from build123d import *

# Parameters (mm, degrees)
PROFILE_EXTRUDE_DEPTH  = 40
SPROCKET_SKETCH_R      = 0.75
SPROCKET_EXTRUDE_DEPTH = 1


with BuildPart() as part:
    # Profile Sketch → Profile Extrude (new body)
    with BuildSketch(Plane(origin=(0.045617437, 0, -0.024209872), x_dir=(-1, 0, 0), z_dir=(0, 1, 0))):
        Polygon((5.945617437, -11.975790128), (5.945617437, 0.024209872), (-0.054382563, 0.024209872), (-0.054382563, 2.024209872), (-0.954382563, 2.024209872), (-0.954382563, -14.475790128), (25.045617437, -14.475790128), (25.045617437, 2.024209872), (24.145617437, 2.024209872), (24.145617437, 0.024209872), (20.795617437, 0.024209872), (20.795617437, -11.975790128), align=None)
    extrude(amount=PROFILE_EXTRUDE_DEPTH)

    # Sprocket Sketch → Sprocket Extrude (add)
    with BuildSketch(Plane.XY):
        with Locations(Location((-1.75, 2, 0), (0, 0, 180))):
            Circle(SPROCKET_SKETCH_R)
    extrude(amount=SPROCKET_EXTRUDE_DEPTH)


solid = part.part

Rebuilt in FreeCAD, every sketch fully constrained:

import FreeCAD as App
import Part
import Sketcher

V = App.Vector
Q = App.Units.Quantity

doc = App.newDocument("Part")
body = doc.addObject("PartDesign::Body", "Body")

sketch1 = doc.addObject("Sketcher::SketchObject", "Sketch")
body.addObject(sketch1)
sketch1.AttachmentSupport = (doc.XZ_Plane, [""])
sketch1.MapMode = "FlatFace"
sketch1.addGeometry([
    Part.LineSegment(V(-5.9, -12, 0), V(-5.9, 0, 0)),
    Part.LineSegment(V(-5.9, 0, 0), V(0.1, 0, 0)),
    Part.LineSegment(V(0.1, 0, 0), V(0.1, 2, 0)),
    Part.LineSegment(V(0.1, 2, 0), V(1, 2, 0)),
    Part.LineSegment(V(1, 2, 0), V(1, -14.5, 0)),
    Part.LineSegment(V(1, -14.5, 0), V(-25, -14.5, 0)),
    Part.LineSegment(V(-25, -14.5, 0), V(-25, 2, 0)),
    Part.LineSegment(V(-25, 2, 0), V(-24.1, 2, 0)),
    Part.LineSegment(V(-24.1, 2, 0), V(-24.1, 0, 0)),
    Part.LineSegment(V(-24.1, 0, 0), V(-20.75, 0, 0)),
    Part.LineSegment(V(-20.75, 0, 0), V(-20.75, -12, 0)),
    Part.LineSegment(V(-20.75, -12, 0), V(-5.9, -12, 0)),
], False)
sketch1.addConstraint([
    Sketcher.Constraint("Coincident", 0, 2, 1, 1),
    Sketcher.Constraint("Coincident", 1, 2, 2, 1),
    Sketcher.Constraint("Coincident", 2, 2, 3, 1),
    Sketcher.Constraint("Coincident", 3, 2, 4, 1),
    Sketcher.Constraint("Coincident", 4, 2, 5, 1),
    Sketcher.Constraint("Coincident", 5, 2, 6, 1),
    Sketcher.Constraint("Coincident", 6, 2, 7, 1),
    Sketcher.Constraint("Coincident", 7, 2, 8, 1),
    Sketcher.Constraint("Coincident", 8, 2, 9, 1),
    Sketcher.Constraint("Coincident", 9, 2, 10, 1),
    Sketcher.Constraint("Coincident", 10, 2, 11, 1),
    Sketcher.Constraint("Coincident", 11, 2, 0, 1),
    Sketcher.Constraint("Vertical", 0),
    Sketcher.Constraint("Horizontal", 1),
    Sketcher.Constraint("Vertical", 2),
    Sketcher.Constraint("Horizontal", 3),
    Sketcher.Constraint("Vertical", 4),
    Sketcher.Constraint("Horizontal", 5),
    Sketcher.Constraint("Vertical", 6),
    Sketcher.Constraint("Horizontal", 7),
    Sketcher.Constraint("Vertical", 8),
    Sketcher.Constraint("Horizontal", 9),
    Sketcher.Constraint("Vertical", 10),
    Sketcher.Constraint("Horizontal", 11),
    Sketcher.Constraint("PointOnObject", 0, 2, -1),
    Sketcher.Constraint("PointOnObject", 8, 2, -1),
    Sketcher.Constraint("Horizontal", 3, 2, 6, 2),
    Sketcher.Constraint("Equal", 3, 7),
    Sketcher.Constraint("DistanceX", 1, 1, 1, 2, Q("6 mm")),
    Sketcher.Constraint("DistanceX", 5, 2, 5, 1, Q("26 mm")),
    Sketcher.Constraint("DistanceY", 0, 1, 0, 2, Q("12 mm")),
    Sketcher.Constraint("DistanceY", 2, 1, 2, 2, Q("2 mm")),
    Sketcher.Constraint("DistanceX", 3, 1, 3, 2, Q("0.9 mm")),
    Sketcher.Constraint("DistanceY", 4, 2, 4, 1, Q("16.5 mm")),
    Sketcher.Constraint("DistanceX", -1, 1, 3, 2, Q("1 mm")),
    Sketcher.Constraint("DistanceX", 9, 1, 9, 2, Q("3.35 mm")),
])
pad1 = doc.addObject("PartDesign::Pad", "Pad")
body.addObject(pad1)
pad1.Profile = sketch1
pad1.Length = 40
pad1.Reversed = True

sketch2 = doc.addObject("Sketcher::SketchObject", "Sketch001")
body.addObject(sketch2)
sketch2.AttachmentSupport = (doc.XY_Plane, [""])
sketch2.MapMode = "FlatFace"
sketch2.addGeometry(Part.Circle(V(-1.75, 2, 0), V(0, 0, 1), 0.75), False)
sketch2.addConstraint([
    Sketcher.Constraint("Diameter", 0, Q("1.5 mm")),
    Sketcher.Constraint("DistanceY", -1, 1, 0, 3, Q("2 mm")),
    Sketcher.Constraint("DistanceX", 0, 3, -1, 1, Q("1.75 mm")),
])
pad2 = doc.addObject("PartDesign::Pad", "Pad001")
body.addObject(pad2)
pad2.Profile = sketch2
pad2.Length = 1

doc.recompute()
